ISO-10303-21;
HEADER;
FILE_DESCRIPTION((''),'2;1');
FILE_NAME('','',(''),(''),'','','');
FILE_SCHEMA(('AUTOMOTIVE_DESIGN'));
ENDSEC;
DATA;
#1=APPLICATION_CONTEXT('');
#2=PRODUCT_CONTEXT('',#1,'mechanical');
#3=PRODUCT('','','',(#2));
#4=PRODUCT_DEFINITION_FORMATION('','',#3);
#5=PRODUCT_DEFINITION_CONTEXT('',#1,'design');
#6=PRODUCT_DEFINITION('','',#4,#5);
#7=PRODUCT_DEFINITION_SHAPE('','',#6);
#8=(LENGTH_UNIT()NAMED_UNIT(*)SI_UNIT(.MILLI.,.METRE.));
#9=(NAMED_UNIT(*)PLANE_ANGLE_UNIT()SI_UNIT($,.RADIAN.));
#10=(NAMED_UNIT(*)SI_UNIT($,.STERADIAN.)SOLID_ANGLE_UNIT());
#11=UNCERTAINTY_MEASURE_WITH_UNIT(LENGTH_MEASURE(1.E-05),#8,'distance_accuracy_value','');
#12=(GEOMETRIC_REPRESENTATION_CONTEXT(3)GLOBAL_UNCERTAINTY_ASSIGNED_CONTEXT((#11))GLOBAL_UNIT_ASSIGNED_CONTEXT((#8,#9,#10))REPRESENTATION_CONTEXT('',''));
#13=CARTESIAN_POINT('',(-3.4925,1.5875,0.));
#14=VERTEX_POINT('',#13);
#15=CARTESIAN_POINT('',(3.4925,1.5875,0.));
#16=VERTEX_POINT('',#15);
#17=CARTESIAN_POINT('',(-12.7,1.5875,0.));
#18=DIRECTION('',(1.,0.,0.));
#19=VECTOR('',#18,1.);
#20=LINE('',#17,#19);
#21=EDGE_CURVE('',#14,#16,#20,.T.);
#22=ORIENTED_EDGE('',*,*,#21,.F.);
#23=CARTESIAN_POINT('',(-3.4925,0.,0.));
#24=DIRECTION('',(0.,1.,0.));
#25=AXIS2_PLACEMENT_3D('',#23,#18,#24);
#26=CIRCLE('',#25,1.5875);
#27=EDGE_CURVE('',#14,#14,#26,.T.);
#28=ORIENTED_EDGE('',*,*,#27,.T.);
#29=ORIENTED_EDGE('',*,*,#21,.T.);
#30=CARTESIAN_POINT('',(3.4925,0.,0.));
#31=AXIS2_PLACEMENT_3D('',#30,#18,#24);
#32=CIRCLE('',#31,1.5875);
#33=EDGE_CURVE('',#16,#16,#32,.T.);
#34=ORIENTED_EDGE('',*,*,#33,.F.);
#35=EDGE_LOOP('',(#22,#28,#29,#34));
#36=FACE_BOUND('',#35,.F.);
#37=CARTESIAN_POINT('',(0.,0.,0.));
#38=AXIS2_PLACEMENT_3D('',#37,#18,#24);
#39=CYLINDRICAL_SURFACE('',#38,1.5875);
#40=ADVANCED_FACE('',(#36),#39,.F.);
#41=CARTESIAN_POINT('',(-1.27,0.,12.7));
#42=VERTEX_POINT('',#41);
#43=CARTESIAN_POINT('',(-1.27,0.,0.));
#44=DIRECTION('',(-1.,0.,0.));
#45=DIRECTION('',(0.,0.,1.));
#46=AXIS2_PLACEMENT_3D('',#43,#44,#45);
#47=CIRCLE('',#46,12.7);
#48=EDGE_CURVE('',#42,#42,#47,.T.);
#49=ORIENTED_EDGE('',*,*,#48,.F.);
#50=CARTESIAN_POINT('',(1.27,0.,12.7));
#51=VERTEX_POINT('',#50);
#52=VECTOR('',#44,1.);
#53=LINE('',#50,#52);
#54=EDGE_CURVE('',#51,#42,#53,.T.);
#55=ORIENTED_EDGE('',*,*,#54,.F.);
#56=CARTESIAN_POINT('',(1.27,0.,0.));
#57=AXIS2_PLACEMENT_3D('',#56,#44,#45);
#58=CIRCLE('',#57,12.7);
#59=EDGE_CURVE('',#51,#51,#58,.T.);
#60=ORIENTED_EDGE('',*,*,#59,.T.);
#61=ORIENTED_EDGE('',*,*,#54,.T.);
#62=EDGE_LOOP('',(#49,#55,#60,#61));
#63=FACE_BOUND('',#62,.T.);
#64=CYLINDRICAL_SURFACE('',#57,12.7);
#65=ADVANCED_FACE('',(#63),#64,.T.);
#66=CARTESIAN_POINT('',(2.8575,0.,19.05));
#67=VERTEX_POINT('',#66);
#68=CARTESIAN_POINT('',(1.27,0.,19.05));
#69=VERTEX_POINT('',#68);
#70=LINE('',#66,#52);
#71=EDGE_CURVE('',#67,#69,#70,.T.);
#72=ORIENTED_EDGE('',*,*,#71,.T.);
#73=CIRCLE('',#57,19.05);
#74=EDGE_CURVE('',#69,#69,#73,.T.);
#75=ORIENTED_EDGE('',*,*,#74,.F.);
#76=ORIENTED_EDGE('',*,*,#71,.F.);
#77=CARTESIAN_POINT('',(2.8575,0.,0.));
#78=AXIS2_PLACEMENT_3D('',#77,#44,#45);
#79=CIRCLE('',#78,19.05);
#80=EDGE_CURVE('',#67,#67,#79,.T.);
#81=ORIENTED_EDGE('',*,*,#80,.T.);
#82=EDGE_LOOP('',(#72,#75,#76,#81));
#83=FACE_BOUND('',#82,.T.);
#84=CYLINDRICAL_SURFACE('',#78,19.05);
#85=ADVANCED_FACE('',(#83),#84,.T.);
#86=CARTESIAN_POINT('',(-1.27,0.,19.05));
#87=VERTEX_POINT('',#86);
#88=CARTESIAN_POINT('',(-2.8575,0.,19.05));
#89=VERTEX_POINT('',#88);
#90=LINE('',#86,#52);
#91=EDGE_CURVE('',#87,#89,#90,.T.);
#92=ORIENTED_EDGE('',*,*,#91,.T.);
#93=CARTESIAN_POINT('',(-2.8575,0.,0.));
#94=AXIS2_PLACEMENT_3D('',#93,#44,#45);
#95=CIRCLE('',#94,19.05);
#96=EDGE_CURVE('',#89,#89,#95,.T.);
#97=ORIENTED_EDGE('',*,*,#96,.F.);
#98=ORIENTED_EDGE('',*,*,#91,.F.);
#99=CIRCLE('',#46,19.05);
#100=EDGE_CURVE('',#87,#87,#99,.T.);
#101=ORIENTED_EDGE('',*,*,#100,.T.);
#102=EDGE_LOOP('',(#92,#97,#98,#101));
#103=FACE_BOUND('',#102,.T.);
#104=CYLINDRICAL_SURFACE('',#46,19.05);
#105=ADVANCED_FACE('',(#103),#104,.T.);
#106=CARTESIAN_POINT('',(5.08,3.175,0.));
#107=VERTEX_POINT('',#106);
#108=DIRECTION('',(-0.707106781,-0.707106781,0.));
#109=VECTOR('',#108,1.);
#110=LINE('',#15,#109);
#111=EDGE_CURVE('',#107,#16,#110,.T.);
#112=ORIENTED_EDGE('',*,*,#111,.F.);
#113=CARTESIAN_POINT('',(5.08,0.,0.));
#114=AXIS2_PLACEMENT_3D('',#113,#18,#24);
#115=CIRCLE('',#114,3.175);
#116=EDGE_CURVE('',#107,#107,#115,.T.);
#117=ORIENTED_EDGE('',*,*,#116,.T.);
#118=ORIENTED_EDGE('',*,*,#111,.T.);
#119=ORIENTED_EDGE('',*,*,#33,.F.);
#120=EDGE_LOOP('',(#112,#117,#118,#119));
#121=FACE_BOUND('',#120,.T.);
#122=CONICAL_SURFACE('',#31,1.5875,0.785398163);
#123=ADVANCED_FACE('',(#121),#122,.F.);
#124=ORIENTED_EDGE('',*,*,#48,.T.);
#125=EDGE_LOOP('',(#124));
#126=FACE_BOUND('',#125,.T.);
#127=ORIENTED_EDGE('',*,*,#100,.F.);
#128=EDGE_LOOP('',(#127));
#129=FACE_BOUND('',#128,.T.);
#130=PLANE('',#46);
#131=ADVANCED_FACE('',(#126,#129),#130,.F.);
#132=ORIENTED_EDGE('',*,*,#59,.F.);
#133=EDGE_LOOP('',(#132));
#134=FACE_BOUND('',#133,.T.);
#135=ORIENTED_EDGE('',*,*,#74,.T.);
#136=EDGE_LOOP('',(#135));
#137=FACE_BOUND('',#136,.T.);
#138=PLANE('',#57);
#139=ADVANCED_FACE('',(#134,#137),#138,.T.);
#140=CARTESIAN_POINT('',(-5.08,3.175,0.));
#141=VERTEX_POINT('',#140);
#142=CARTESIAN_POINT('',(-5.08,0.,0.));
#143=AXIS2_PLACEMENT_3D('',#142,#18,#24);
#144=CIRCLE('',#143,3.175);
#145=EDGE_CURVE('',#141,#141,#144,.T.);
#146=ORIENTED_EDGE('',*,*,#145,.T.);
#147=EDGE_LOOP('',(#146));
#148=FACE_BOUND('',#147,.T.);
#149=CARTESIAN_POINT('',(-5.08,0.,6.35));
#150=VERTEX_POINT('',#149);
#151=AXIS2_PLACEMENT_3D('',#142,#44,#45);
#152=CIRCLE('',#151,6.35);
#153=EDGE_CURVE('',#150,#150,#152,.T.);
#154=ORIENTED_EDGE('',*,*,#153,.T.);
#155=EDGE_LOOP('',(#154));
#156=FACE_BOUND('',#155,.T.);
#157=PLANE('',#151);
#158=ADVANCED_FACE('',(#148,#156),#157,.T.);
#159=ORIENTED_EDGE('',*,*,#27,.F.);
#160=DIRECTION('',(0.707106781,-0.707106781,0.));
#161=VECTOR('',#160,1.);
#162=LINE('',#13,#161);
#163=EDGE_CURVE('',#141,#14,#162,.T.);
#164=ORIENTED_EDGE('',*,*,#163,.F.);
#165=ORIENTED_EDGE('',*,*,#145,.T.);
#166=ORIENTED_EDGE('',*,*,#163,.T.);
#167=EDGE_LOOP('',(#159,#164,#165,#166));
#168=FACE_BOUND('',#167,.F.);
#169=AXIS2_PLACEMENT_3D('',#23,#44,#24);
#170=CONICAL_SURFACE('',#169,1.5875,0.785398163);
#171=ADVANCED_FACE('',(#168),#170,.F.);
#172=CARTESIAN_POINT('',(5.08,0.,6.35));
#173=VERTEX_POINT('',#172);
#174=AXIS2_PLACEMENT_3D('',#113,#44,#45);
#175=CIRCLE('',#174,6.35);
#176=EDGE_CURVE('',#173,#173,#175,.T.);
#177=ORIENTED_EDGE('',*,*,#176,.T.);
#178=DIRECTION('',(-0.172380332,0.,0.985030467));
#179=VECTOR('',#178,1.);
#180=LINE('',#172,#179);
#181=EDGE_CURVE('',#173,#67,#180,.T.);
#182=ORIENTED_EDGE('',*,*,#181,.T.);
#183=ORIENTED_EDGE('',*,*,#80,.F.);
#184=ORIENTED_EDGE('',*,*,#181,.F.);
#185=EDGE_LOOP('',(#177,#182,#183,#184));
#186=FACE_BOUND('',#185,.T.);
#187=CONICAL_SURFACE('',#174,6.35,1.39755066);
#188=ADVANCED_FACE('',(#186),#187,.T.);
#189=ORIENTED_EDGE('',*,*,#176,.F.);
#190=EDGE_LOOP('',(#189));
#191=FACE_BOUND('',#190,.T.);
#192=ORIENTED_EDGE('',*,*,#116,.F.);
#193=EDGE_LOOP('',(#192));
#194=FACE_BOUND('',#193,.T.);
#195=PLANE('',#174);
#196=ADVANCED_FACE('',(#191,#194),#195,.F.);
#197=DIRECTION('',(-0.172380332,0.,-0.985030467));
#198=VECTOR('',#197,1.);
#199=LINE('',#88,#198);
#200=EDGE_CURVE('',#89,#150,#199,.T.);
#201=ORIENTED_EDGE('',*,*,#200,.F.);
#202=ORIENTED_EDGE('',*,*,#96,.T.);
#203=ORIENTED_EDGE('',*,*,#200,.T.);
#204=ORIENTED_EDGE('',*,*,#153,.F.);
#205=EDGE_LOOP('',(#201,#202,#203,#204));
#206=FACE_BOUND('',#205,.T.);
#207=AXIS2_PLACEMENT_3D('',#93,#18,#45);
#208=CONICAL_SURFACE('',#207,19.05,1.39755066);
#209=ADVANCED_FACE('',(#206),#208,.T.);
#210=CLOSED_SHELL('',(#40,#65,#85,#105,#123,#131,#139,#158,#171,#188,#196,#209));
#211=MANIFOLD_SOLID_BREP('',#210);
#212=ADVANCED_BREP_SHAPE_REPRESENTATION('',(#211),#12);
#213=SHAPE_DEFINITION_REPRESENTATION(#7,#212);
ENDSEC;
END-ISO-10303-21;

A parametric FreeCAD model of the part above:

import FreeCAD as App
import Part
import Sketcher

V = App.Vector
Q = App.Units.Quantity


def edges_at(feature, points):
    """Names of the edges that pass closest to the given points."""
    edges = feature.Shape.Edges
    near = lambda p: min(range(len(edges)), key=lambda i: edges[i].distToShape(Part.Vertex(*p))[0])
    return sorted({f"Edge{near(p) + 1}" for p in points})

doc = App.newDocument("Part")
body = doc.addObject("PartDesign::Body", "Body")

sketch1 = body.newObject("Sketcher::SketchObject", "Sketch")
sketch1.AttachmentSupport = (doc.getObject("XZ_Plane"), [""])
sketch1.MapMode = "FlatFace"
sketch1.addGeometry(Part.LineSegment(V(1.3, 12.7, 0), V(-1.3, 12.7, 0)), False)
sketch1.addGeometry(Part.LineSegment(V(-1.3, 12.7, 0), V(-1.3, 19.1, 0)), False)
sketch1.addGeometry(Part.LineSegment(V(-1.3, 19.1, 0), V(-2.9, 19.1, 0)), False)
sketch1.addGeometry(Part.LineSegment(V(-2.9, 19.1, 0), V(-5.1, 6.3, 0)), False)
sketch1.addGeometry(Part.LineSegment(V(-5.1, 6.3, 0), V(-5.1, 0, 0)), False)
sketch1.addGeometry(Part.LineSegment(V(-5.1, 0, 0), V(5.1, 0, 0)), False)
sketch1.addGeometry(Part.LineSegment(V(5.1, 0, 0), V(5.1, 6.3, 0)), False)
sketch1.addGeometry(Part.LineSegment(V(5.1, 6.3, 0), V(2.9, 19.1, 0)), False)
sketch1.addGeometry(Part.LineSegment(V(2.9, 19.1, 0), V(1.3, 19.1, 0)), False)
sketch1.addGeometry(Part.LineSegment(V(1.3, 19.1, 0), V(1.3, 12.7, 0)), False)
sketch1.addConstraint(Sketcher.Constraint("Coincident", 0, 2, 1, 1))
sketch1.addConstraint(Sketcher.Constraint("Coincident", 1, 2, 2, 1))
sketch1.addConstraint(Sketcher.Constraint("Coincident", 2, 2, 3, 1))
sketch1.addConstraint(Sketcher.Constraint("Coincident", 3, 2, 4, 1))
sketch1.addConstraint(Sketcher.Constraint("Coincident", 4, 2, 5, 1))
sketch1.addConstraint(Sketcher.Constraint("Coincident", 5, 2, 6, 1))
sketch1.addConstraint(Sketcher.Constraint("Coincident", 6, 2, 7, 1))
sketch1.addConstraint(Sketcher.Constraint("Coincident", 7, 2, 8, 1))
sketch1.addConstraint(Sketcher.Constraint("Coincident", 8, 2, 9, 1))
sketch1.addConstraint(Sketcher.Constraint("Coincident", 9, 2, 0, 1))
sketch1.addConstraint(Sketcher.Constraint("Horizontal", 0))
sketch1.addConstraint(Sketcher.Constraint("Vertical", 1))
sketch1.addConstraint(Sketcher.Constraint("Horizontal", 2))
sketch1.addConstraint(Sketcher.Constraint("Vertical", 4))
sketch1.addConstraint(Sketcher.Constraint("Horizontal", 5))
sketch1.addConstraint(Sketcher.Constraint("Vertical", 6))
sketch1.addConstraint(Sketcher.Constraint("Horizontal", 8))
sketch1.addConstraint(Sketcher.Constraint("Vertical", 9))
sketch1.addConstraint(Sketcher.Constraint("Symmetric", 4, 2, 5, 2, -1, 1))
sketch1.addConstraint(Sketcher.Constraint("Symmetric", 2, 2, 7, 2, -2))
sketch1.addConstraint(Sketcher.Constraint("Horizontal", 3, 2, 6, 2))
sketch1.addConstraint(Sketcher.Constraint("Equal", 2, 8))
sketch1.addConstraint(Sketcher.Constraint("Equal", 1, 4))
sketch1.addConstraint(Sketcher.Constraint("DistanceX", 0, 2, 0, 1, Q("0.1 in")))
sketch1.addConstraint(Sketcher.Constraint("DistanceX", 5, 1, 5, 2, Q("0.4 in")))
sketch1.addConstraint(Sketcher.Constraint("DistanceY", 1, 1, 1, 2, Q("0.25 in")))
sketch1.addConstraint(Sketcher.Constraint("DistanceY", -1, 1, 0, 2, Q("0.5 in")))
sketch1.addConstraint(Sketcher.Constraint("DistanceX", 2, 2, 2, 1, Q("0.0625 in")))
revolution = body.newObject("PartDesign::Revolution", "Revolution")
revolution.Profile = sketch1
revolution.ReferenceAxis = (sketch1, ["H_Axis"])
revolution.Angle = 360

sketch2 = body.newObject("Sketcher::SketchObject", "Sketch001")
sketch2.AttachmentSupport = (doc.getObject("YZ_Plane"), [""])
sketch2.MapMode = "FlatFace"
sketch2.addGeometry(Part.Circle(V(0, 0, 0), V(0, 0, 1), 1.6), False)
sketch2.addConstraint(Sketcher.Constraint("Coincident", 0, 3, -1, 1))
sketch2.addConstraint(Sketcher.Constraint("Diameter", 0, Q("0.125 in")))
pocket1 = body.newObject("PartDesign::Pocket", "Pocket")
pocket1.Profile = sketch2
pocket1.Length = Q("1 in")
pocket1.Midplane = True
doc.recompute()

chamfer = body.newObject("PartDesign::Chamfer", "Chamfer")
chamfer.Base = (pocket1, edges_at(pocket1, [(5.08, -1.587, 0), (-5.08, -1.587, 0)]))
chamfer.Size = Q("0.0625 in")

doc.recompute()
